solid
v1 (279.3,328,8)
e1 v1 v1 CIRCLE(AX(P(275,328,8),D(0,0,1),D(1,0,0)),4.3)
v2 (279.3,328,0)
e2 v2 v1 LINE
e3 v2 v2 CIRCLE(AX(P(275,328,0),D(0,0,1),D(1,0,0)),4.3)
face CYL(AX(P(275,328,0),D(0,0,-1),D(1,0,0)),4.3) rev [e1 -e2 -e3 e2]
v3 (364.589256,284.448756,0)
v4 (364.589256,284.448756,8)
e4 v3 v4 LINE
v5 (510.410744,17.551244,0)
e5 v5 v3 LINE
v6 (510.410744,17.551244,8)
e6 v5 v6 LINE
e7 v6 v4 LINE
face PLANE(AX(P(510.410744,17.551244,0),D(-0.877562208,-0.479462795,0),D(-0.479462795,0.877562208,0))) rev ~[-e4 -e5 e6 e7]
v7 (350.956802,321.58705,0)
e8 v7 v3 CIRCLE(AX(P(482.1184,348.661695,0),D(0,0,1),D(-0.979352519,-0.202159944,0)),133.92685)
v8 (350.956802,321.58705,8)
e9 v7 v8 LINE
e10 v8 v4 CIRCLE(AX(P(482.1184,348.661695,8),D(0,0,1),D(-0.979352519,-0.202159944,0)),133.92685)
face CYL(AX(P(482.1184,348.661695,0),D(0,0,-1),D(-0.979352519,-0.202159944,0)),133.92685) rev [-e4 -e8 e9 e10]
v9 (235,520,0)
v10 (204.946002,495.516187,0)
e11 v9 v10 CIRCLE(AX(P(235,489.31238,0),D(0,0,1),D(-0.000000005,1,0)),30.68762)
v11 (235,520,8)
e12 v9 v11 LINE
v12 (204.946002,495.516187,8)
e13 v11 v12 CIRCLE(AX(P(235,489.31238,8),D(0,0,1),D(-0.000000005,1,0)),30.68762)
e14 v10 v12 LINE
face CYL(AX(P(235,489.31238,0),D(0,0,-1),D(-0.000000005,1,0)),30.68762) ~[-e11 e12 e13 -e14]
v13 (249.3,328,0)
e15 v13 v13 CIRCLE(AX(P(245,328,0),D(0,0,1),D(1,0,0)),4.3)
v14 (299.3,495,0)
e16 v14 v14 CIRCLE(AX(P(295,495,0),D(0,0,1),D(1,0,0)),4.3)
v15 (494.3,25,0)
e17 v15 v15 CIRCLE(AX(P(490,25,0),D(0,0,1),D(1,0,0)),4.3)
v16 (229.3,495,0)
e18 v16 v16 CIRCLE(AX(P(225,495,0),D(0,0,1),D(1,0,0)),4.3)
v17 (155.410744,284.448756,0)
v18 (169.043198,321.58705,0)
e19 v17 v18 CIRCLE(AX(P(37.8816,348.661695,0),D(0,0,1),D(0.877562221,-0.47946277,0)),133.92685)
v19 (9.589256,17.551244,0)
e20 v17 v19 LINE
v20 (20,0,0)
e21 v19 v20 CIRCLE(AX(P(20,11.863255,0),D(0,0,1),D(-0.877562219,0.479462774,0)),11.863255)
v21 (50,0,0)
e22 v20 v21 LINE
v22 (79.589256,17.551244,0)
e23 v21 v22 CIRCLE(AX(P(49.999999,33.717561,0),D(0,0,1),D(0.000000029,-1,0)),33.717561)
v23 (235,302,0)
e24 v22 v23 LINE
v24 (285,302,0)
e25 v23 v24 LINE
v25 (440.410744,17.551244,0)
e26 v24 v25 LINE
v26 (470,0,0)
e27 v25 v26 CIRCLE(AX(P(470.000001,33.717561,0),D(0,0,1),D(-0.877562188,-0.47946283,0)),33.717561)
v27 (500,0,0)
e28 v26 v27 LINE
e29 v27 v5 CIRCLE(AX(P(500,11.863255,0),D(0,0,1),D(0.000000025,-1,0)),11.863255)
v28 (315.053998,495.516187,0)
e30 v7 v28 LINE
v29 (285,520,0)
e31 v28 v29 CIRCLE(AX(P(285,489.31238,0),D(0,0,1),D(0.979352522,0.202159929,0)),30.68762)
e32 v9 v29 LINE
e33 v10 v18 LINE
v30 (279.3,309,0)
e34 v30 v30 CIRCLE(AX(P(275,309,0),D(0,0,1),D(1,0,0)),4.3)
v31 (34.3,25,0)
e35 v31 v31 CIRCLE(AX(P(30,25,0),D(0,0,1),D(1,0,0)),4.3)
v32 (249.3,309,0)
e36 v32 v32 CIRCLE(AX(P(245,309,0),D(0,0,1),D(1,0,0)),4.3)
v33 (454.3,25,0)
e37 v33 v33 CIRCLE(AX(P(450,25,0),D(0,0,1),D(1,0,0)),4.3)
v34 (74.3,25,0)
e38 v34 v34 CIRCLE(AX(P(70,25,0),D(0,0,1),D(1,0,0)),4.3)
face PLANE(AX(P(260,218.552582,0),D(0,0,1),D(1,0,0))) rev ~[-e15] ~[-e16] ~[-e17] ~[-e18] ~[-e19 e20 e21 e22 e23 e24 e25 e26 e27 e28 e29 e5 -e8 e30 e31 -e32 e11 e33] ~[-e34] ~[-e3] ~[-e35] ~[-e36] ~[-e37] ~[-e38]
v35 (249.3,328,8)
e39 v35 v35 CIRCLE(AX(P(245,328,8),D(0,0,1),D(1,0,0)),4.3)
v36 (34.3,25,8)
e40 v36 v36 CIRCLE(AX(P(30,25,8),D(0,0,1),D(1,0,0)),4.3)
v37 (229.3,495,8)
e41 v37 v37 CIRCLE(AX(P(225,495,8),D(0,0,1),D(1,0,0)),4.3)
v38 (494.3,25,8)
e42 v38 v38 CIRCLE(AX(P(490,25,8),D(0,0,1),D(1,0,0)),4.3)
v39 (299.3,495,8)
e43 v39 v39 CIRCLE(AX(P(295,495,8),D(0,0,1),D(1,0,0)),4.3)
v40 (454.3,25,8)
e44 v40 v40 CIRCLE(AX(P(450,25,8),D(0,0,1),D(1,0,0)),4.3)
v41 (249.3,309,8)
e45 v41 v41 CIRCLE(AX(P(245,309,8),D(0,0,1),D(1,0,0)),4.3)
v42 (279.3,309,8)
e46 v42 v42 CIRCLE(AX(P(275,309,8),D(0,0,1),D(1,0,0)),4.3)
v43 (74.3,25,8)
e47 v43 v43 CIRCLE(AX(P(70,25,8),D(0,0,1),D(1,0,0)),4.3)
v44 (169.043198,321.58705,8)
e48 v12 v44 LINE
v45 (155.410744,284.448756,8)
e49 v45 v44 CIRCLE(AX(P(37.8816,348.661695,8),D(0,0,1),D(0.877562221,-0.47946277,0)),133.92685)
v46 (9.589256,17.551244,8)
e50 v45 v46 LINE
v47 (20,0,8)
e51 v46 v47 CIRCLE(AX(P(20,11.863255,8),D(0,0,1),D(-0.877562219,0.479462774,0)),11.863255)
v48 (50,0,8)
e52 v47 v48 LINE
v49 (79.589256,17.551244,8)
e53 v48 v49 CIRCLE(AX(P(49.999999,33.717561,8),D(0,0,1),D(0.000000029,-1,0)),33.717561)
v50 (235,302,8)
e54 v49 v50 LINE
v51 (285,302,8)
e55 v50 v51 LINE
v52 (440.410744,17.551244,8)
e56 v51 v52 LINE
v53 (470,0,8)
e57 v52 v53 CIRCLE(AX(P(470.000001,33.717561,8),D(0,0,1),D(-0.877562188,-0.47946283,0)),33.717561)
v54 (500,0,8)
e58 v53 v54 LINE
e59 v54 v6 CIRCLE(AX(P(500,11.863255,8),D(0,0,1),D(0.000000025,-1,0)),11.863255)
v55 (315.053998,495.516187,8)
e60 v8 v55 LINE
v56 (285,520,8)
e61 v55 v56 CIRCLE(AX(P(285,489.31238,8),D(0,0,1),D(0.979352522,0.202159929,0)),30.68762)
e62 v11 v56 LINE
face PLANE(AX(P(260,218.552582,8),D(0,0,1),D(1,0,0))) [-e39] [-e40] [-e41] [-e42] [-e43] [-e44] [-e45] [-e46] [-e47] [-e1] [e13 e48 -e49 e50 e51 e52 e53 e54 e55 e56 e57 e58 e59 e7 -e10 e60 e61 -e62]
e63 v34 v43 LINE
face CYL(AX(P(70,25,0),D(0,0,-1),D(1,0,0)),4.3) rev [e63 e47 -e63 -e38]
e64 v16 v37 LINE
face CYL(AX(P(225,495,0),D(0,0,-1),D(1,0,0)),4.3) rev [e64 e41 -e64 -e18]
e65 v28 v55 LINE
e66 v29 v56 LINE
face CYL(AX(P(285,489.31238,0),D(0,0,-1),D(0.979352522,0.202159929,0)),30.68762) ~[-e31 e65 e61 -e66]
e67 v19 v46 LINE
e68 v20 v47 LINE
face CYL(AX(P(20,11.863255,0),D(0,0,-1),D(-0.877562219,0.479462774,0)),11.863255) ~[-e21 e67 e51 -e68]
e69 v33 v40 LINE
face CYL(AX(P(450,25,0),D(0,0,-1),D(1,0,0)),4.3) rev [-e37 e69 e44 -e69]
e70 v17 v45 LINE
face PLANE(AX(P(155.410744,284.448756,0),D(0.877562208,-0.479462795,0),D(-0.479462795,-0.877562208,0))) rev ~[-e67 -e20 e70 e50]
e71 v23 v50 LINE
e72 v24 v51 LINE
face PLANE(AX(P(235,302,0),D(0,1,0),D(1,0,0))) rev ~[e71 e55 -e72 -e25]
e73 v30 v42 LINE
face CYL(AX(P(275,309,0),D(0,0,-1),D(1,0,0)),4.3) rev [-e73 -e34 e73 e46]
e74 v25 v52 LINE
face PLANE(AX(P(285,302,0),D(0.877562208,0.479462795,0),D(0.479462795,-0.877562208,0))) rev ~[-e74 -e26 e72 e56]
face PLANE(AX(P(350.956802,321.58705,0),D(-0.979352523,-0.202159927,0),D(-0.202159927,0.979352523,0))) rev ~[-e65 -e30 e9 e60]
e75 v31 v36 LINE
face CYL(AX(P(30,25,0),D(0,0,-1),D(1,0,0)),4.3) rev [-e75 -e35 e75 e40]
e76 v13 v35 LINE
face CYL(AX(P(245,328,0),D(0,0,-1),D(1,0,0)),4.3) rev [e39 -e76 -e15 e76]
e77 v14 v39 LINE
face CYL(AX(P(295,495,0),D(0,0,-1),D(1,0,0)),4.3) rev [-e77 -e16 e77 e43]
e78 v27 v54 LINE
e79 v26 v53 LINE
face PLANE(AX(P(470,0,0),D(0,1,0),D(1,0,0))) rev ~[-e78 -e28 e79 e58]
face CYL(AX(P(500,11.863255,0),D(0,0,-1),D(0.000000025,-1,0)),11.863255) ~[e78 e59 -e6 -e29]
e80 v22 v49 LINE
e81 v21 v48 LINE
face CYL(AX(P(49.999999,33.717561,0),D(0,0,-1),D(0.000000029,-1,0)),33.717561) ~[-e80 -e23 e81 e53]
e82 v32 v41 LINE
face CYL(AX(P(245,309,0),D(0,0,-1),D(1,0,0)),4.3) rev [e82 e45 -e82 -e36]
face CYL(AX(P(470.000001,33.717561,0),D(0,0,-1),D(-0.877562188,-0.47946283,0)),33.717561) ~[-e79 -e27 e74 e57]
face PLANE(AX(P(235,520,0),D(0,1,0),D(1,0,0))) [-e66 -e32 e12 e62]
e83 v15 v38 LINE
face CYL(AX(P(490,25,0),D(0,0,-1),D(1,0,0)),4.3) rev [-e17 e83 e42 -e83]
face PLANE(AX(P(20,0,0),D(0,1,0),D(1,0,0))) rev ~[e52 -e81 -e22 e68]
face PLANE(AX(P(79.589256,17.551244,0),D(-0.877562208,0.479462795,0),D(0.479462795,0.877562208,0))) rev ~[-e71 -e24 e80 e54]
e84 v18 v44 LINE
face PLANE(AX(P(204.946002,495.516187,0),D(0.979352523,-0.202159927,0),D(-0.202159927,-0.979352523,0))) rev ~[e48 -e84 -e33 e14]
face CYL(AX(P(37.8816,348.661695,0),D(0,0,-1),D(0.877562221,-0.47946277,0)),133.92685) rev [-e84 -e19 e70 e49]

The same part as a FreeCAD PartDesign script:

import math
import FreeCAD as App
import Part
import Sketcher

V = App.Vector
Q = App.Units.Quantity

doc = App.newDocument("Part")
body = doc.addObject("PartDesign::Body", "Body")

# Sketch on XY plane
sketch1 = doc.addObject("Sketcher::SketchObject", "Sketch")
body.addObject(sketch1)
sketch1.AttachmentSupport = (doc.XY_Plane, [""])
sketch1.MapMode = "FlatFace"
sketch1.addGeometry([
    Part.LineSegment(V(20, 0, 0), V(50, 0, 0)),  # 0
    Part.ArcOfCircle(Part.Circle(V(50, 33.7, 0), V(0, 0, 1), 33.7), math.radians(-90), math.radians(-29)),  # 1
    Part.LineSegment(V(79.6, 17.6, 0), V(235, 302, 0)),  # 2
    Part.LineSegment(V(235, 302, 0), V(285, 302, 0)),  # 3
    Part.LineSegment(V(285, 302, 0), V(440.4, 17.6, 0)),  # 4
    Part.ArcOfCircle(Part.Circle(V(470, 33.7, 0), V(0, 0, 1), 33.7), math.radians(-151), math.radians(-90)),  # 5
    Part.LineSegment(V(470, 0, 0), V(500, 0, 0)),  # 6
    Part.ArcOfCircle(Part.Circle(V(500, 11.9, 0), V(0, 0, 1), 11.9), math.radians(-90), math.radians(29)),  # 7
    Part.LineSegment(V(510.4, 17.6, 0), V(364.6, 284.4, 0)),  # 8
    Part.ArcOfCircle(Part.Circle(V(482.1, 348.7, 0), V(0, 0, 1), 133.9), math.radians(-168.34), math.radians(-151.35)),  # 9
    Part.LineSegment(V(351, 321.6, 0), V(315.1, 495.5, 0)),  # 10
    Part.ArcOfCircle(Part.Circle(V(285, 489.3, 0), V(0, 0, 1), 30.7), math.radians(12), math.radians(90)),  # 11
    Part.LineSegment(V(285, 520, 0), V(235, 520, 0)),  # 12
    Part.ArcOfCircle(Part.Circle(V(235, 489.3, 0), V(0, 0, 1), 30.7), math.radians(90), math.radians(168)),  # 13
    Part.LineSegment(V(204.9, 495.5, 0), V(169, 321.6, 0)),  # 14
    Part.ArcOfCircle(Part.Circle(V(37.9, 348.7, 0), V(0, 0, 1), 133.9), math.radians(-28.65), math.radians(-11.66)),  # 15
    Part.LineSegment(V(155.4, 284.4, 0), V(9.6, 17.6, 0)),  # 16
    Part.ArcOfCircle(Part.Circle(V(20, 11.9, 0), V(0, 0, 1), 11.9), math.radians(151), math.radians(270)),  # 17
    Part.Circle(V(30, 25, 0), V(0, 0, 1), 4.3),  # 18
    Part.Circle(V(70, 25, 0), V(0, 0, 1), 4.3),  # 19
    Part.Circle(V(450, 25, 0), V(0, 0, 1), 4.3),  # 20
    Part.Circle(V(490, 25, 0), V(0, 0, 1), 4.3),  # 21
    Part.Circle(V(245, 309, 0), V(0, 0, 1), 4.3),  # 22
    Part.Circle(V(245, 328, 0), V(0, 0, 1), 4.3),  # 23
    Part.Circle(V(225, 495, 0), V(0, 0, 1), 4.3),  # 24
    Part.Circle(V(275, 309, 0), V(0, 0, 1), 4.3),  # 25
    Part.Circle(V(275, 328, 0), V(0, 0, 1), 4.3),  # 26
    Part.Circle(V(295, 495, 0), V(0, 0, 1), 4.3),  # 27
], False)
sketch1.addConstraint([
    Sketcher.Constraint("Tangent", 0, 2, 1, 1),
    Sketcher.Constraint("Tangent", 1, 2, 2, 1),
    Sketcher.Constraint("Coincident", 2, 2, 3, 1),
    Sketcher.Constraint("Coincident", 3, 2, 4, 1),
    Sketcher.Constraint("Tangent", 4, 2, 5, 1),
    Sketcher.Constraint("Tangent", 5, 2, 6, 1),
    Sketcher.Constraint("Tangent", 6, 2, 7, 1),
    Sketcher.Constraint("Tangent", 7, 2, 8, 1),
    Sketcher.Constraint("Tangent", 8, 2, 9, 2),
    Sketcher.Constraint("Tangent", 9, 1, 10, 1),
    Sketcher.Constraint("Tangent", 10, 2, 11, 1),
    Sketcher.Constraint("Tangent", 11, 2, 12, 1),
    Sketcher.Constraint("Tangent", 12, 2, 13, 1),
    Sketcher.Constraint("Tangent", 13, 2, 14, 1),
    Sketcher.Constraint("Tangent", 14, 2, 15, 2),
    Sketcher.Constraint("Tangent", 15, 1, 16, 1),
    Sketcher.Constraint("Tangent", 16, 2, 17, 1),
    Sketcher.Constraint("Tangent", 17, 2, 0, 1),
    Sketcher.Constraint("Horizontal", 0),
    Sketcher.Constraint("Horizontal", 3),
    Sketcher.Constraint("Horizontal", 6),
    Sketcher.Constraint("Horizontal", 12),
    Sketcher.Constraint("Equal", 1, 5),
    Sketcher.Constraint("Equal", 11, 13),
    Sketcher.Constraint("Equal", 9, 15),
    Sketcher.Constraint("Equal", 7, 17),
    Sketcher.Constraint("Equal", 18, 19),
    Sketcher.Constraint("Equal", 19, 20),
    Sketcher.Constraint("Equal", 20, 21),
    Sketcher.Constraint("Equal", 21, 22),
    Sketcher.Constraint("Equal", 22, 23),
    Sketcher.Constraint("Equal", 23, 24),
    Sketcher.Constraint("Equal", 24, 25),
    Sketcher.Constraint("Equal", 25, 26),
    Sketcher.Constraint("Equal", 26, 27),
    Sketcher.Constraint("PointOnObject", 0, 2, -1),
    Sketcher.Constraint("PointOnObject", 5, 2, -1),
    Sketcher.Constraint("Parallel", 4, 8),
    Sketcher.Constraint("Parallel", 2, 16),
    Sketcher.Constraint("Horizontal", 9, 3, 15, 3),
    Sketcher.Constraint("Horizontal", 18, 3, 19, 3),
    Sketcher.Constraint("Horizontal", 19, 3, 20, 3),
    Sketcher.Constraint("Horizontal", 20, 3, 21, 3),
    Sketcher.Constraint("Horizontal", 22, 3, 25, 3),
    Sketcher.Constraint("Horizontal", 23, 3, 26, 3),
    Sketcher.Constraint("Horizontal", 24, 3, 27, 3),
    Sketcher.Constraint("Horizontal", 1, 2, 4, 2),
    Sketcher.Constraint("Horizontal", 4, 2, 7, 2),
    Sketcher.Constraint("Horizontal", 10, 2, 13, 2),
    Sketcher.Constraint("Vertical", 22, 3, 23, 3),
    Sketcher.Constraint("Vertical", 25, 3, 26, 3),
    Sketcher.Constraint("Vertical", 13, 3, 2, 2),
    Sketcher.Constraint("Vertical", 11, 3, 3, 2),
    Sketcher.Constraint("Diameter", 18, Q("8.6 mm")),
    Sketcher.Constraint("DistanceX", 0, 1, 0, 2, Q("30 mm")),
    Sketcher.Constraint("DistanceX", 3, 1, 3, 2, Q("50 mm")),
    Sketcher.Constraint("DistanceX", -1, 1, 1, 3, Q("49.999999 mm")),
    Sketcher.Constraint("DistanceX", -1, 1, 5, 3, Q("470.000001 mm")),
    Sketcher.Constraint("DistanceX", -1, 1, 18, 3, Q("30 mm")),
    Sketcher.Constraint("DistanceY", -1, 1, 18, 3, Q("25 mm")),
    Sketcher.Constraint("DistanceX", -1, 1, 19, 3, Q("70 mm")),
    Sketcher.Constraint("DistanceX", -1, 1, 20, 3, Q("450 mm")),
    Sketcher.Constraint("DistanceX", -1, 1, 21, 3, Q("490 mm")),
    Sketcher.Constraint("DistanceX", -1, 1, 22, 3, Q("245 mm")),
    Sketcher.Constraint("DistanceY", -1, 1, 22, 3, Q("309 mm")),
    Sketcher.Constraint("DistanceY", -1, 1, 23, 3, Q("328 mm")),
    Sketcher.Constraint("DistanceX", -1, 1, 24, 3, Q("225 mm")),
    Sketcher.Constraint("DistanceY", -1, 1, 24, 3, Q("495 mm")),
    Sketcher.Constraint("DistanceX", -1, 1, 25, 3, Q("275 mm")),
    Sketcher.Constraint("DistanceX", -1, 1, 27, 3, Q("295 mm")),
    Sketcher.Constraint("DistanceY", -1, 1, 2, 2, Q("302 mm")),
    Sketcher.Constraint("DistanceY", -1, 1, 11, 2, Q("520 mm")),
    Sketcher.Constraint("Radius", 1, Q("33.717561 mm")),
    Sketcher.Constraint("Radius", 9, Q("133.92685 mm")),
    Sketcher.Constraint("Radius", 11, Q("30.68762 mm")),
    Sketcher.Constraint("DistanceX", -1, 1, 10, 2, Q("315.053998 mm")),
])
pad1 = doc.addObject("PartDesign::Pad", "Pad")
body.addObject(pad1)
pad1.Profile = sketch1
pad1.Length = 8

doc.recompute()
